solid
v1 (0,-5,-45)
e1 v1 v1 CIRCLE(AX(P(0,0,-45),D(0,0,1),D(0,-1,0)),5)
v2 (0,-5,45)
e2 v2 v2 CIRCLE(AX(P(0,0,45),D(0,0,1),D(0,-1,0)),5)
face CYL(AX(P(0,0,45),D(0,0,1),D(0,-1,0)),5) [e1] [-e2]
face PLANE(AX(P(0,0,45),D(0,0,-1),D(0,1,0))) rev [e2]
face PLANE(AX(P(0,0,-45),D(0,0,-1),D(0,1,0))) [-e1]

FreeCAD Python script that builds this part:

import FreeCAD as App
import Part
import Sketcher

V = App.Vector

doc = App.newDocument("Part")
params = doc.addObject("Spreadsheet::Sheet", "Params")
for row, (alias, value) in enumerate([
    ("sketch1_width", "5 mm"),
    ("sketch1_height", "90 mm"),
    ("revolution_angle", "360 deg"),
], start=1):
    params.set(f"A{row}", alias)
    params.set(f"B{row}", "=" + value)
    params.setAlias(f"B{row}", alias)

body = doc.addObject("PartDesign::Body", "Body")

# Sketch on YZ plane
sketch1 = body.newObject("Sketcher::SketchObject", "Sketch")
sketch1.AttachmentSupport = (doc.getObject("YZ_Plane"), [""])
sketch1.MapMode = "FlatFace"
sketch1.addGeometry(Part.LineSegment(V(5, 45, 0), V(0, 45, 0)), False)
sketch1.addGeometry(Part.LineSegment(V(0, 45, 0), V(0, -45, 0)), False)
sketch1.addGeometry(Part.LineSegment(V(0, -45, 0), V(5, -45, 0)), False)
sketch1.addGeometry(Part.LineSegment(V(5, -45, 0), V(5, 45, 0)), False)
sketch1.addConstraint(Sketcher.Constraint("Coincident", 0, 2, 1, 1))
sketch1.addConstraint(Sketcher.Constraint("Coincident", 1, 2, 2, 1))
sketch1.addConstraint(Sketcher.Constraint("Coincident", 2, 2, 3, 1))
sketch1.addConstraint(Sketcher.Constraint("Coincident", 3, 2, 0, 1))
sketch1.addConstraint(Sketcher.Constraint("Horizontal", 0))
sketch1.addConstraint(Sketcher.Constraint("Vertical", 1))
sketch1.addConstraint(Sketcher.Constraint("Horizontal", 2))
sketch1.addConstraint(Sketcher.Constraint("Vertical", 3))
sketch1.addConstraint(Sketcher.Constraint("Symmetric", 0, 2, 1, 2, -1, 1))
sketch1.addConstraint(Sketcher.Constraint("DistanceX", 0, 2, 0, 1, 5.0))
sketch1.addConstraint(Sketcher.Constraint("DistanceY", 1, 2, 1, 1, 90.0))
sketch1.setExpression("Constraints[9]", "Params.sketch1_width")
sketch1.setExpression("Constraints[10]", "Params.sketch1_height")
revolution = body.newObject("PartDesign::Revolution", "Revolution")
revolution.Profile = sketch1
revolution.ReferenceAxis = (sketch1, ["V_Axis"])
revolution.setExpression("Angle", "Params.revolution_angle")

doc.recompute()
